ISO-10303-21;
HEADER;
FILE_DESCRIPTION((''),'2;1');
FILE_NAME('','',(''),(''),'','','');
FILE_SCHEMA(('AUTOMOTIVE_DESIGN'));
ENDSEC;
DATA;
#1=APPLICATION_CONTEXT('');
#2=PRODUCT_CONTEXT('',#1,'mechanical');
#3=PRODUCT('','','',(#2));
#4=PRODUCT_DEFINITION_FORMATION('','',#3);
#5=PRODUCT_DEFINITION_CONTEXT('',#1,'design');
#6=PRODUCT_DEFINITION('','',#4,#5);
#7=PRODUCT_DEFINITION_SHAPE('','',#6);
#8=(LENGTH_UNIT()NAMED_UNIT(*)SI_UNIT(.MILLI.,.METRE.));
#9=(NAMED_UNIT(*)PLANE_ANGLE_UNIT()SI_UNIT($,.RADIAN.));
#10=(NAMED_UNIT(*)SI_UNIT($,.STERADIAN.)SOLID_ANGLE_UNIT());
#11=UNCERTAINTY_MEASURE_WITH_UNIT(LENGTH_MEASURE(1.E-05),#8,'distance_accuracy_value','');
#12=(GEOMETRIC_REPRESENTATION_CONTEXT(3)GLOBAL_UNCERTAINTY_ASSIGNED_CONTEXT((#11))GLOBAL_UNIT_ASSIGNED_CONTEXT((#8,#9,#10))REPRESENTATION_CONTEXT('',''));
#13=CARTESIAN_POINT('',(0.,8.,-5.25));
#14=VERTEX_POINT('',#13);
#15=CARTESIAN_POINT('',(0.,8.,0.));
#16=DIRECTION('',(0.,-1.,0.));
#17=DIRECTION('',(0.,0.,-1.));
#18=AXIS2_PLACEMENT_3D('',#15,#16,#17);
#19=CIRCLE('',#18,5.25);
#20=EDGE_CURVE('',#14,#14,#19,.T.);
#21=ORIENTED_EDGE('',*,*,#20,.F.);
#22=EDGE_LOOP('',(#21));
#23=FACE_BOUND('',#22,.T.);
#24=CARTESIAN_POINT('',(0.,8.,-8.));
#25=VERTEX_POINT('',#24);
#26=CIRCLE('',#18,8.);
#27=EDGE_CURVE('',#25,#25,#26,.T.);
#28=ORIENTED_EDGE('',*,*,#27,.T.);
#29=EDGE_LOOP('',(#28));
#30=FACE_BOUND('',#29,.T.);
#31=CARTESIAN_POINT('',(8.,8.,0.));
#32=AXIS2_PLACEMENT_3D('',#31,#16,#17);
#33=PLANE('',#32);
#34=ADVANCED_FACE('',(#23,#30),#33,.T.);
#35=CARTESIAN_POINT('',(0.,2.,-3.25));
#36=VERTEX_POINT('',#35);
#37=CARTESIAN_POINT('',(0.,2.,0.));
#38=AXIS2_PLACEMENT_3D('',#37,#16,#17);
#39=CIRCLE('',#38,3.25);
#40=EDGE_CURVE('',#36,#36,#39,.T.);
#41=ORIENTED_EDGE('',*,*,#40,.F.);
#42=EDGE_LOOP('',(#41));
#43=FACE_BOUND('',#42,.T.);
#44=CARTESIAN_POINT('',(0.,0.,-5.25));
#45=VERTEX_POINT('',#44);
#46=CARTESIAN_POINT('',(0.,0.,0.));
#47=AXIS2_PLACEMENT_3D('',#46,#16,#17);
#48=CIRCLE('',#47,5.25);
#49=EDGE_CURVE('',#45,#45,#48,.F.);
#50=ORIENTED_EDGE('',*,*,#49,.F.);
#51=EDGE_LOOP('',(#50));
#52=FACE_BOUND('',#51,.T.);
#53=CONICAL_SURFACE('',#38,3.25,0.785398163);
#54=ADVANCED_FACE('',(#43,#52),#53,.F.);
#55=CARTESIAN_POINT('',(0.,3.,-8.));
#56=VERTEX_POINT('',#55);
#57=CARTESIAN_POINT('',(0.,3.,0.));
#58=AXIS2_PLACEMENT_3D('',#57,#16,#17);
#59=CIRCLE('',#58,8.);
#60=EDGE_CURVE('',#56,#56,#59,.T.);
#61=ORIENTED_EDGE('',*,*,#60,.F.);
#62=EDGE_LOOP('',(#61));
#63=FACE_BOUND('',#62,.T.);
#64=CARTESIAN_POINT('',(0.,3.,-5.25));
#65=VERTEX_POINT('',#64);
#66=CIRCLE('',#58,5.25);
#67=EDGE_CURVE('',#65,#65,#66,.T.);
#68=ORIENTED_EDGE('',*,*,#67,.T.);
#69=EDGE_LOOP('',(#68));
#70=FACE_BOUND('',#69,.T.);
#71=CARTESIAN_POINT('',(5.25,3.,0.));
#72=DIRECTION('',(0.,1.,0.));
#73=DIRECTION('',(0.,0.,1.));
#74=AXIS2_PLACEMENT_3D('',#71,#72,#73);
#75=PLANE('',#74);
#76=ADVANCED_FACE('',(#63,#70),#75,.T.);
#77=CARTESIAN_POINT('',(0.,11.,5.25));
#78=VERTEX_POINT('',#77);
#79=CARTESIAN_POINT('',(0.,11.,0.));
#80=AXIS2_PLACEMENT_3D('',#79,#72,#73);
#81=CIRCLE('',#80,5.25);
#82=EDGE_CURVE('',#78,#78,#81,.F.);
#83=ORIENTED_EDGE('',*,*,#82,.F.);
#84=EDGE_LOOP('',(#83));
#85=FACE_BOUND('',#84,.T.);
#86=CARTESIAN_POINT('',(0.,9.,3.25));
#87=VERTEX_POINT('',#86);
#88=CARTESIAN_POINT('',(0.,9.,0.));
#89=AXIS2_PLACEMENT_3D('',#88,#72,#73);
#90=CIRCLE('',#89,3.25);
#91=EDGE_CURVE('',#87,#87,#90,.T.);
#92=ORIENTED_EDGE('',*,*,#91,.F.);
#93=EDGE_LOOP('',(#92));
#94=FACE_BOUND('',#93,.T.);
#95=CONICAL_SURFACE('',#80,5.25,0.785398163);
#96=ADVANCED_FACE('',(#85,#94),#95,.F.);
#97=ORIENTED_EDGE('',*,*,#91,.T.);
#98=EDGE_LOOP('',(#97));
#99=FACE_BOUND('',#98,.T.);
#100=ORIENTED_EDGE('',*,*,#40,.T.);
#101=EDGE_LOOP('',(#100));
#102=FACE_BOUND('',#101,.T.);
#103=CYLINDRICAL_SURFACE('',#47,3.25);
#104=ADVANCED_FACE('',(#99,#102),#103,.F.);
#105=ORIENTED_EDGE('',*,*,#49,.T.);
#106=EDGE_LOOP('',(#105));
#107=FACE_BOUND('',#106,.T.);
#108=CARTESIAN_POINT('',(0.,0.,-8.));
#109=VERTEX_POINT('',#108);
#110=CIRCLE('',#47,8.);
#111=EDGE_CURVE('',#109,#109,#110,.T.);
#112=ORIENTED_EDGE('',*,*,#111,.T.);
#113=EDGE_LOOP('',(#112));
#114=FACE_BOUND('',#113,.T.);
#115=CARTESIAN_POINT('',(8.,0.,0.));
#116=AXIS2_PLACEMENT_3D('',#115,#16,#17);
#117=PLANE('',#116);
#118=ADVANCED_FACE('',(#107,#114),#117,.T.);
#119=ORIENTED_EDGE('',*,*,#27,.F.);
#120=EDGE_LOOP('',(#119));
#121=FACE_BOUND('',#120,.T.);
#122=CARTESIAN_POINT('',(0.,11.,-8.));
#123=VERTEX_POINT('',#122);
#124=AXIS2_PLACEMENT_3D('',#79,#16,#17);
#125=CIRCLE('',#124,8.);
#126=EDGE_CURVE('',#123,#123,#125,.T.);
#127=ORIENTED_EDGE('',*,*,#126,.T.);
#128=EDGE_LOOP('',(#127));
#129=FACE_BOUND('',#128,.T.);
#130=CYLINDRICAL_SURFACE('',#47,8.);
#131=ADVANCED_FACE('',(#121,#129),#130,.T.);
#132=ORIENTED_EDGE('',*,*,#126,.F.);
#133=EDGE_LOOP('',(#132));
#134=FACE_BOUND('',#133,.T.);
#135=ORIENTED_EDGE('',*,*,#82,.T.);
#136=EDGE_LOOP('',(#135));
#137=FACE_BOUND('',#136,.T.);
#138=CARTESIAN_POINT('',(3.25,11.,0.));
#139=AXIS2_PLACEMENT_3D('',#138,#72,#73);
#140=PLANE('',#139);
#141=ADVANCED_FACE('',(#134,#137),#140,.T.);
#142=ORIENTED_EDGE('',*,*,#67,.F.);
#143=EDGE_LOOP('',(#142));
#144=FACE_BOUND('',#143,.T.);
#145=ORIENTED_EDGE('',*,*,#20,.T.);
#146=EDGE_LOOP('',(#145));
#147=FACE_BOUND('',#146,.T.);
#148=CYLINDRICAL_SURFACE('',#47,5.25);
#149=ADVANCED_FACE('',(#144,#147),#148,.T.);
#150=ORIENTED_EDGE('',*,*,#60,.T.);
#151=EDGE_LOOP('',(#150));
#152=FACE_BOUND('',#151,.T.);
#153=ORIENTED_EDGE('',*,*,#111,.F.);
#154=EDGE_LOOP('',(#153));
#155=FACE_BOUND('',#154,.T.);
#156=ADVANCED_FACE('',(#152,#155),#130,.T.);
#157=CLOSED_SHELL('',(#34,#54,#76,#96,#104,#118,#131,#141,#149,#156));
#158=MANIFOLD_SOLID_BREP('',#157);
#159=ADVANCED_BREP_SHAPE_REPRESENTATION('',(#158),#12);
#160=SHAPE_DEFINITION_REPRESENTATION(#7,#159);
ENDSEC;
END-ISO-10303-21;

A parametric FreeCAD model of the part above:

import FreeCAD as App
import Part
import Sketcher
Q = App.Units.Quantity


def edges_at(feature, points):
    """Names of the edges that pass closest to the given points."""
    edges = feature.Shape.Edges
    near = lambda p: min(range(len(edges)), key=lambda i: edges[i].distToShape(Part.Vertex(*p))[0])
    return sorted({f"Edge{near(p) + 1}" for p in points})


def add_polygon(sketch, points):
    """Adds a closed chain of lines whose ends are joined by coincident constraints."""
    first, n = sketch.GeometryCount, len(points)
    for a, b in zip(points, points[1:] + points[:1]):
        sketch.addGeometry(Part.LineSegment(App.Vector(*a, 0), App.Vector(*b, 0)), False)
    for i in range(n):
        sketch.addConstraint(Sketcher.Constraint("Coincident", first + i, 2, first + (i + 1) % n, 1))

doc = App.newDocument("Part")
body = doc.addObject("PartDesign::Body", "Body")

sketch1 = body.newObject("Sketcher::SketchObject", "Sketch")
sketch1.AttachmentSupport = (doc.getObject("XY_Plane"), [""])
sketch1.MapMode = "FlatFace"
add_polygon(sketch1, [(3.25, 11), (3.25, 0), (8, 0), (8, 3), (5.25, 3), (5.25, 8), (8, 8), (8, 11)])
sketch1.addConstraint([
    Sketcher.Constraint("Vertical", 0),
    Sketcher.Constraint("Horizontal", 1),
    Sketcher.Constraint("Vertical", 2),
    Sketcher.Constraint("Horizontal", 3),
    Sketcher.Constraint("Vertical", 4),
    Sketcher.Constraint("Horizontal", 5),
    Sketcher.Constraint("Vertical", 6),
    Sketcher.Constraint("Horizontal", 7),
    Sketcher.Constraint("PointOnObject", 0, 2, -1),
    Sketcher.Constraint("Vertical", 2, 2, 5, 2),
    Sketcher.Constraint("Equal", 2, 6),
    Sketcher.Constraint("DistanceY", 0, 2, 0, 1, Q("11 mm")),
    Sketcher.Constraint("DistanceY", 2, 1, 2, 2, Q("3 mm")),
    Sketcher.Constraint("DistanceX", -1, 1, 1, 2, Q("8 mm")),
    Sketcher.Constraint("DistanceX", 0, 2, 3, 2, Q("2 mm")),
    Sketcher.Constraint("DistanceX", 1, 1, 1, 2, Q("4.75 mm")),
])
revolution = body.newObject("PartDesign::Revolution", "Revolution")
revolution.Profile = sketch1
revolution.ReferenceAxis = (sketch1, ["V_Axis"])
revolution.Angle = 360
doc.recompute()

chamfer = body.newObject("PartDesign::Chamfer", "Chamfer")
chamfer.Base = (revolution, edges_at(revolution, [(0, 0, 3.25), (0, 11, 3.25)]))
chamfer.Size = 2

doc.recompute()
